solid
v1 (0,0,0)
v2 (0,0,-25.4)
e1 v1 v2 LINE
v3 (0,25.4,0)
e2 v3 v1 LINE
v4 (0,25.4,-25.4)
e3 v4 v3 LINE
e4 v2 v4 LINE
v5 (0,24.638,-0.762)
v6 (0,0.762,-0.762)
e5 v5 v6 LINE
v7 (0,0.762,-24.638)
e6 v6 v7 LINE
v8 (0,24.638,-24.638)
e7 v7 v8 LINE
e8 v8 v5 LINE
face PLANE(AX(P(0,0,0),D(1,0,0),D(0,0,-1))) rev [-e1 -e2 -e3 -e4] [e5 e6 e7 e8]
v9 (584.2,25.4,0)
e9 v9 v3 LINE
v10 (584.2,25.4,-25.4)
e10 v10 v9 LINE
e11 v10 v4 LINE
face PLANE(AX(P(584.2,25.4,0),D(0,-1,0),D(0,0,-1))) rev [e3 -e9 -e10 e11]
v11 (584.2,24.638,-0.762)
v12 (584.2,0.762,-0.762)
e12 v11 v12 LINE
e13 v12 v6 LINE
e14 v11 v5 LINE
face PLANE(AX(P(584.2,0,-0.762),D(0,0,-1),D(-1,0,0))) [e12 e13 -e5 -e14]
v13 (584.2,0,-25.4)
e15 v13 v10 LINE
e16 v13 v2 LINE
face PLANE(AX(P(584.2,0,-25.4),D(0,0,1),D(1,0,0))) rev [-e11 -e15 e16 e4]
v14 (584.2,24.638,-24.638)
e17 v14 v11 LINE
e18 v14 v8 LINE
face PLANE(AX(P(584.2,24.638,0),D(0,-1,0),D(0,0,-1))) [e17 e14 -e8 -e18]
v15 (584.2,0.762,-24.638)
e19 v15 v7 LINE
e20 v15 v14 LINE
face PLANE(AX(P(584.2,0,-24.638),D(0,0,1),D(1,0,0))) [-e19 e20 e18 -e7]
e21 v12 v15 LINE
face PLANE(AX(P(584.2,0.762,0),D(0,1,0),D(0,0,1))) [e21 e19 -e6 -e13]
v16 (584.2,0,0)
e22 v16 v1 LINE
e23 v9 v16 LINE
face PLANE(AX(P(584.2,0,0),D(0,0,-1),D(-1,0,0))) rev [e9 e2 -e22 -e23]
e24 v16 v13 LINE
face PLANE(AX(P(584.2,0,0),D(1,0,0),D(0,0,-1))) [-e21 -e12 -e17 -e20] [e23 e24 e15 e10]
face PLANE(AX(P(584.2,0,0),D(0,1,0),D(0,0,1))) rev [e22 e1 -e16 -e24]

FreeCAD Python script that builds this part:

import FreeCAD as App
import Part
import Sketcher
from FreeCAD import Vector
Q = App.Units.Quantity


def add_polygon(sketch, points):
    """Adds a closed chain of lines whose ends are joined by coincident constraints."""
    first, n = sketch.GeometryCount, len(points)
    for a, b in zip(points, points[1:] + points[:1]):
        sketch.addGeometry(Part.LineSegment(App.Vector(*a, 0), App.Vector(*b, 0)), False)
    for i in range(n):
        sketch.addConstraint(Sketcher.Constraint("Coincident", first + i, 2, first + (i + 1) % n, 1))

doc = App.newDocument("Part")
body = doc.addObject("PartDesign::Body", "Body")

# Sketch on YZ plane
sketch1 = body.newObject("Sketcher::SketchObject", "Sketch")
sketch1.AttachmentSupport = (doc.getObject("YZ_Plane"), [""])
sketch1.MapMode = "FlatFace"
add_polygon(sketch1, [(25, 0), (0, 0), (0, -25), (25, -25)])  # lines 0-3
add_polygon(sketch1, [(1, -25), (1, -1), (25, -1), (25, -25)])  # lines 4-7
sketch1.addConstraint(Sketcher.Constraint("Horizontal", 0))
sketch1.addConstraint(Sketcher.Constraint("Vertical", 1))
sketch1.addConstraint(Sketcher.Constraint("Horizontal", 2))
sketch1.addConstraint(Sketcher.Constraint("Vertical", 3))
sketch1.addConstraint(Sketcher.Constraint("Vertical", 4))
sketch1.addConstraint(Sketcher.Constraint("Horizontal", 5))
sketch1.addConstraint(Sketcher.Constraint("Vertical", 6))
sketch1.addConstraint(Sketcher.Constraint("Horizontal", 7))
sketch1.addConstraint(Sketcher.Constraint("Coincident", 0, 2, -1, 1))
sketch1.addConstraint(Sketcher.Constraint("Equal", 2, 1))
sketch1.addConstraint(Sketcher.Constraint("Equal", 7, 4))
sketch1.addConstraint(Sketcher.Constraint("DistanceX", 0, 2, 0, 1, Q("1 in")))
sketch1.addConstraint(Sketcher.Constraint("DistanceX", 5, 1, 5, 2, Q("0.94 in")))
sketch1.addConstraint(Sketcher.Constraint("DistanceX", -1, 1, 4, 2, Q("0.03 in")))
sketch1.addConstraint(Sketcher.Constraint("DistanceY", 4, 2, -1, 1, Q("0.03 in")))
pad1 = body.newObject("PartDesign::Pad", "Pad")
pad1.Profile = sketch1
pad1.Length = Q("23 in")

doc.recompute()
